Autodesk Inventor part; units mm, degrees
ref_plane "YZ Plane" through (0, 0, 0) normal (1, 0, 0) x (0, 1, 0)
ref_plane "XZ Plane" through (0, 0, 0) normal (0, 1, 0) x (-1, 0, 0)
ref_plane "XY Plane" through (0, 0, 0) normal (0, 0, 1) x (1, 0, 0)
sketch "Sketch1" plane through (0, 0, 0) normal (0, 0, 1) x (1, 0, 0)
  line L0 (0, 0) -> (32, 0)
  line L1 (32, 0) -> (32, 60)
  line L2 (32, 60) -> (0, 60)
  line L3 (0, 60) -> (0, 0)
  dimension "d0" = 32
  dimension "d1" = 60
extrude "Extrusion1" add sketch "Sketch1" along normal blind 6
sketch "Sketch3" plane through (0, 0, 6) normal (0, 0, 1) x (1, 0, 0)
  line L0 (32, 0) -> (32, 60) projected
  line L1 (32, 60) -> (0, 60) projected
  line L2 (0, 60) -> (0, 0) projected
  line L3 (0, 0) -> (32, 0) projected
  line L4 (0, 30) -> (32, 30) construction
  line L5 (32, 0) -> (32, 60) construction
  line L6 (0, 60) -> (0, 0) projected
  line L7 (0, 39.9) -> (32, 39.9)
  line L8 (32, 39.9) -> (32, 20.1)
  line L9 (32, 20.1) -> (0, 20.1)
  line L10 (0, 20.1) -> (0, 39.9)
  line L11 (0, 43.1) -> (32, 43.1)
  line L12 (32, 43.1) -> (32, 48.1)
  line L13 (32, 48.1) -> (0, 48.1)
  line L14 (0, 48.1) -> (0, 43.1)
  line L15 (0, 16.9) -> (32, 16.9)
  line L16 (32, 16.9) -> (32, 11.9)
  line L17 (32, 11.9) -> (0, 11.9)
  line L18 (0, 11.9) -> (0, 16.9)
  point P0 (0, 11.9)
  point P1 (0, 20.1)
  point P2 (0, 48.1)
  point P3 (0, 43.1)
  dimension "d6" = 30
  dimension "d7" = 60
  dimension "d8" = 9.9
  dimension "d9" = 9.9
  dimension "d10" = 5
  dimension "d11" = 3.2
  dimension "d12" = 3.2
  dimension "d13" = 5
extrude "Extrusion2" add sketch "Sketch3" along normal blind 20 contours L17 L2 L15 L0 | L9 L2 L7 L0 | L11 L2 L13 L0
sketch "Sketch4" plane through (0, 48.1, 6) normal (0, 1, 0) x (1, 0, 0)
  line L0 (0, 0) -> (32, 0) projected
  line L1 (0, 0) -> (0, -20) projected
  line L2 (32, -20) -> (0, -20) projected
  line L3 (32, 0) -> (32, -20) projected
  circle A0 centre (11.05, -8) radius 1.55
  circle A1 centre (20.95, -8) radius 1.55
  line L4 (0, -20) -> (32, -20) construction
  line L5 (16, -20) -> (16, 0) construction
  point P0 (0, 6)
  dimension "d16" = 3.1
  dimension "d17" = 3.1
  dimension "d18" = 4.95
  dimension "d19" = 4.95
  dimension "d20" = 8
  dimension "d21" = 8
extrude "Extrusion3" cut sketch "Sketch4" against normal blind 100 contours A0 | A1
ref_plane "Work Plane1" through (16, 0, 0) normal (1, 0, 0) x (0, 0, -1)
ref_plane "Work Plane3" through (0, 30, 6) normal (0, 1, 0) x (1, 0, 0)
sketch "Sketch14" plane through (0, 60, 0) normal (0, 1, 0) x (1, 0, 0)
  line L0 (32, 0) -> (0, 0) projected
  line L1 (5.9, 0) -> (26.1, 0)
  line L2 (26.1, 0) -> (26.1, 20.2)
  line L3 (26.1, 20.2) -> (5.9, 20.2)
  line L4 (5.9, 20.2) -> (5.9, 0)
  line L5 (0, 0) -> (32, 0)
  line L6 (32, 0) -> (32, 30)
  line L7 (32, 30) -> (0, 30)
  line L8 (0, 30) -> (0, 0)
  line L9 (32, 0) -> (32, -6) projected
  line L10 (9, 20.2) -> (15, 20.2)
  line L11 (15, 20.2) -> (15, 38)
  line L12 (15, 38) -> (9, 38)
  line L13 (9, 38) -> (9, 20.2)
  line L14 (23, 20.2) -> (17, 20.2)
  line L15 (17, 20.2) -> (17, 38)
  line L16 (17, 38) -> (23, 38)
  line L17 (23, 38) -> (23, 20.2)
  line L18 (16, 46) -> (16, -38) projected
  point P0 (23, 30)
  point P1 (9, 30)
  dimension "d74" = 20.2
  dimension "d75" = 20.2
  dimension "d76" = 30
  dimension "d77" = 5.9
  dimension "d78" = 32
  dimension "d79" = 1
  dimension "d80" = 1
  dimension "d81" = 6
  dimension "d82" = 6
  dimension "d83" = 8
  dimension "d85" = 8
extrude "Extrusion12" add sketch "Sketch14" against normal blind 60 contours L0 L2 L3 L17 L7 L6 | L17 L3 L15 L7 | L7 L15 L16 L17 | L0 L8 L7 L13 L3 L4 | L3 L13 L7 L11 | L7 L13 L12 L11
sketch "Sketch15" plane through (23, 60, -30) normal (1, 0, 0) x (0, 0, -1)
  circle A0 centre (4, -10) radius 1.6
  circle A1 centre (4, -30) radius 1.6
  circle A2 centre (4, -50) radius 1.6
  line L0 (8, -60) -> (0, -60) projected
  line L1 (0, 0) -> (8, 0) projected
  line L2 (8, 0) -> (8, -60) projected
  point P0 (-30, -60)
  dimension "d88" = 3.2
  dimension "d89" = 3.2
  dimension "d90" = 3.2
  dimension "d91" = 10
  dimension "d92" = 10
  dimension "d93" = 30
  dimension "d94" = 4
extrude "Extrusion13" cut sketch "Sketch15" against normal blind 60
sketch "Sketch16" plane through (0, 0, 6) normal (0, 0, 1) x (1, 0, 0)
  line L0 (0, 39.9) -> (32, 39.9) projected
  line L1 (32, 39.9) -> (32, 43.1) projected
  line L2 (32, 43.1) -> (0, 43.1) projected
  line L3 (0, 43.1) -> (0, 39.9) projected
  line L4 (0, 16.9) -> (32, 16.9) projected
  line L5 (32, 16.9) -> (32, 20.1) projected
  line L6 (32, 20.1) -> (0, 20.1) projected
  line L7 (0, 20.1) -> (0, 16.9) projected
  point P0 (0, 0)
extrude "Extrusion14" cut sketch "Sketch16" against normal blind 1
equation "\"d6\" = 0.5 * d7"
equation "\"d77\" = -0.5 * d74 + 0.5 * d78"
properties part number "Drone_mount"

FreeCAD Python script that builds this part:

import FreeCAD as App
import Part
import Sketcher

V = App.Vector


def add_polygon(sketch, points):
    """Adds a closed chain of lines whose ends are joined by coincident constraints."""
    first, n = sketch.GeometryCount, len(points)
    for a, b in zip(points, points[1:] + points[:1]):
        sketch.addGeometry(Part.LineSegment(App.Vector(*a, 0), App.Vector(*b, 0)), False)
    for i in range(n):
        sketch.addConstraint(Sketcher.Constraint("Coincident", first + i, 2, first + (i + 1) % n, 1))

doc = App.newDocument("Part")
body = doc.addObject("PartDesign::Body", "Body")

# Sketch on XY plane
sketch1 = body.newObject("Sketcher::SketchObject", "Sketch")
sketch1.AttachmentSupport = (doc.getObject("XY_Plane"), [""])
sketch1.MapMode = "FlatFace"
add_polygon(sketch1, [(0, 60), (0, 0), (32, 0), (32, 60)])  # lines 0-3
sketch1.addConstraint([
    Sketcher.Constraint("Vertical", 0),
    Sketcher.Constraint("Horizontal", 1),
    Sketcher.Constraint("Vertical", 2),
    Sketcher.Constraint("Horizontal", 3),
    Sketcher.Constraint("Coincident", 0, 2, -1, 1),
    Sketcher.Constraint("DistanceX", 1, 1, 1, 2, 32.0),
    Sketcher.Constraint("DistanceY", 0, 2, 0, 1, 60.0),
])
pad1 = body.newObject("PartDesign::Pad", "Pad")
pad1.Profile = sketch1
pad1.Length = 6

# Sketch on XY plane
sketch2 = body.newObject("Sketcher::SketchObject", "Sketch001")
sketch2.AttachmentSupport = (doc.getObject("XY_Plane"), [""])
sketch2.MapMode = "FlatFace"
sketch2.AttachmentOffset = App.Placement(V(0, 0, 6), App.Rotation())
add_polygon(sketch2, [(0, 11.9), (32, 11.9), (32, 16.9), (0, 16.9)])  # lines 0-3
add_polygon(sketch2, [(0, 20.1), (32, 20.1), (32, 39.9), (0, 39.9)])  # lines 4-7
add_polygon(sketch2, [(0, 43.1), (32, 43.1), (32, 48.1), (0, 48.1)])  # lines 8-11
sketch2.addConstraint([
    Sketcher.Constraint("Horizontal", 0),
    Sketcher.Constraint("Vertical", 1),
    Sketcher.Constraint("Horizontal", 2),
    Sketcher.Constraint("Vertical", 3),
    Sketcher.Constraint("Horizontal", 4),
    Sketcher.Constraint("Vertical", 5),
    Sketcher.Constraint("Horizontal", 6),
    Sketcher.Constraint("Vertical", 7),
    Sketcher.Constraint("Horizontal", 8),
    Sketcher.Constraint("Vertical", 9),
    Sketcher.Constraint("Horizontal", 10),
    Sketcher.Constraint("Vertical", 11),
    Sketcher.Constraint("PointOnObject", 2, 2, -2),
    Sketcher.Constraint("PointOnObject", 6, 2, -2),
    Sketcher.Constraint("PointOnObject", 10, 2, -2),
    Sketcher.Constraint("Vertical", 1, 2, 4, 2),
    Sketcher.Constraint("Vertical", 5, 2, 8, 2),
    Sketcher.Constraint("Equal", 3, 9),
    Sketcher.Constraint("DistanceY", 1, 1, 1, 2, 5.0),
    Sketcher.Constraint("DistanceY", 1, 2, 4, 2, 3.2),
    Sketcher.Constraint("DistanceY", 5, 2, 8, 2, 3.2),
    Sketcher.Constraint("DistanceX", 0, 1, 0, 2, 32.0),
    Sketcher.Constraint("DistanceY", 5, 1, 5, 2, 19.8),
    Sketcher.Constraint("DistanceY", -1, 1, 0, 2, 11.9),
])
pad2 = body.newObject("PartDesign::Pad", "Pad001")
pad2.Profile = sketch2
pad2.Length = 20

# Sketch on XZ plane
sketch3 = body.newObject("Sketcher::SketchObject", "Sketch002")
sketch3.AttachmentSupport = (doc.getObject("XZ_Plane"), [""])
sketch3.MapMode = "FlatFace"
sketch3.AttachmentOffset = App.Placement(V(0, 0, -48.1), App.Rotation())
sketch3.addGeometry([
    Part.Circle(V(11.1, 14, 0), V(0, 0, 1), 1.6),
    Part.Circle(V(20.9, 14, 0), V(0, 0, 1), 1.6),
], False)
sketch3.addConstraint([
    Sketcher.Constraint("Equal", 0, 1),
    Sketcher.Constraint("Horizontal", 0, 3, 1, 3),
    Sketcher.Constraint("Diameter", 0, 3.1),
    Sketcher.Constraint("DistanceY", -1, 1, 0, 3, 14.0),
    Sketcher.Constraint("DistanceX", 0, 3, 1, 3, 9.9),
    Sketcher.Constraint("DistanceX", -1, 1, 0, 3, 11.05),
])
pocket1 = body.newObject("PartDesign::Pocket", "Pocket")
pocket1.Profile = sketch3
pocket1.Length = 100
pocket1.Reversed = True

# Sketch on XZ plane
sketch4 = body.newObject("Sketcher::SketchObject", "Sketch003")
sketch4.AttachmentSupport = (doc.getObject("XZ_Plane"), [""])
sketch4.MapMode = "FlatFace"
sketch4.AttachmentOffset = App.Placement(V(0, 0, -60), App.Rotation())
add_polygon(sketch4, [(26, 0), (32, 0), (32, -30), (23, -30), (23, -38), (17, -38), (17, -20), (26, -20)])  # lines 0-7
add_polygon(sketch4, [(0, 0), (6, 0), (6, -20), (15, -20), (15, -38), (9, -38), (9, -30), (0, -30)])  # lines 8-15
sketch4.addConstraint([
    Sketcher.Constraint("Horizontal", 0),
    Sketcher.Constraint("Vertical", 1),
    Sketcher.Constraint("Horizontal", 2),
    Sketcher.Constraint("Vertical", 3),
    Sketcher.Constraint("Horizontal", 4),
    Sketcher.Constraint("Vertical", 5),
    Sketcher.Constraint("Horizontal", 6),
    Sketcher.Constraint("Vertical", 7),
    Sketcher.Constraint("Horizontal", 8),
    Sketcher.Constraint("Vertical", 9),
    Sketcher.Constraint("Horizontal", 10),
    Sketcher.Constraint("Vertical", 11),
    Sketcher.Constraint("Horizontal", 12),
    Sketcher.Constraint("Vertical", 13),
    Sketcher.Constraint("Horizontal", 14),
    Sketcher.Constraint("Vertical", 15),
    Sketcher.Constraint("Coincident", 15, 2, -1, 1),
    Sketcher.Constraint("PointOnObject", 0, 2, -1),
    Sketcher.Constraint("Horizontal", 6, 2, 9, 2),
    Sketcher.Constraint("Horizontal", 4, 2, 11, 2),
    Sketcher.Constraint("Horizontal", 2, 2, 13, 2),
    Sketcher.Constraint("Equal", 0, 8),
    Sketcher.Constraint("Equal", 6, 10),
    Sketcher.Constraint("Equal", 4, 12),
    Sketcher.Constraint("DistanceX", 4, 2, 4, 1, 6.0),
    Sketcher.Constraint("DistanceY", 1, 2, 1, 1, 30.0),
    Sketcher.Constraint("DistanceY", 3, 2, 3, 1, 8.0),
    Sketcher.Constraint("DistanceX", 0, 1, 0, 2, 5.9),
    Sketcher.Constraint("DistanceY", 7, 1, 7, 2, 20.2),
    Sketcher.Constraint("DistanceX", -1, 1, 0, 2, 32.0),
    Sketcher.Constraint("DistanceX", 10, 2, 2, 2, 8.0),
])
pad3 = body.newObject("PartDesign::Pad", "Pad002")
pad3.Profile = sketch4
pad3.Length = 60

# Sketch on YZ plane
sketch5 = body.newObject("Sketcher::SketchObject", "Sketch004")
sketch5.AttachmentSupport = (doc.getObject("YZ_Plane"), [""])
sketch5.MapMode = "FlatFace"
sketch5.AttachmentOffset = App.Placement(V(0, 0, 23), App.Rotation())
sketch5.addGeometry([
    Part.Circle(V(50, -34, 0), V(0, 0, 1), 1.6),
    Part.Circle(V(30, -34, 0), V(0, 0, 1), 1.6),
    Part.Circle(V(10, -34, 0), V(0, 0, 1), 1.6),
], False)
sketch5.addConstraint([
    Sketcher.Constraint("Equal", 0, 1),
    Sketcher.Constraint("Equal", 1, 2),
    Sketcher.Constraint("Horizontal", 0, 3, 1, 3),
    Sketcher.Constraint("Horizontal", 1, 3, 2, 3),
    Sketcher.Constraint("Diameter", 0, 3.2),
    Sketcher.Constraint("DistanceX", -1, 1, 1, 3, 30.0),
    Sketcher.Constraint("DistanceX", -1, 1, 2, 3, 10.0),
    Sketcher.Constraint("DistanceX", -1, 1, 0, 3, 50.0),
    Sketcher.Constraint("DistanceY", 0, 3, -1, 1, 34.0),
])
pocket2 = body.newObject("PartDesign::Pocket", "Pocket001")
pocket2.Profile = sketch5
pocket2.Length = 60

# Sketch on XY plane
sketch6 = body.newObject("Sketcher::SketchObject", "Sketch005")
sketch6.AttachmentSupport = (doc.getObject("XY_Plane"), [""])
sketch6.MapMode = "FlatFace"
sketch6.AttachmentOffset = App.Placement(V(0, 0, 6), App.Rotation())
add_polygon(sketch6, [(0, 43.1), (0, 39.9), (32, 39.9), (32, 43.1)])  # lines 0-3
add_polygon(sketch6, [(0, 20.1), (0, 16.9), (32, 16.9), (32, 20.1)])  # lines 4-7
sketch6.addConstraint([
    Sketcher.Constraint("Vertical", 0),
    Sketcher.Constraint("Horizontal", 1),
    Sketcher.Constraint("Vertical", 2),
    Sketcher.Constraint("Horizontal", 3),
    Sketcher.Constraint("Vertical", 4),
    Sketcher.Constraint("Horizontal", 5),
    Sketcher.Constraint("Vertical", 6),
    Sketcher.Constraint("Horizontal", 7),
    Sketcher.Constraint("PointOnObject", 0, 2, -2),
    Sketcher.Constraint("PointOnObject", 4, 2, -2),
    Sketcher.Constraint("Vertical", 2, 2, 5, 2),
    Sketcher.Constraint("Equal", 2, 4),
    Sketcher.Constraint("DistanceX", 1, 1, 1, 2, 32.0),
    Sketcher.Constraint("DistanceY", 0, 2, 0, 1, 3.2),
    Sketcher.Constraint("DistanceY", 4, 2, 0, 2, 23.0),
    Sketcher.Constraint("DistanceY", -1, 1, 0, 2, 39.9),
])
pocket3 = body.newObject("PartDesign::Pocket", "Pocket002")
pocket3.Profile = sketch6
pocket3.Length = 1

doc.recompute()
